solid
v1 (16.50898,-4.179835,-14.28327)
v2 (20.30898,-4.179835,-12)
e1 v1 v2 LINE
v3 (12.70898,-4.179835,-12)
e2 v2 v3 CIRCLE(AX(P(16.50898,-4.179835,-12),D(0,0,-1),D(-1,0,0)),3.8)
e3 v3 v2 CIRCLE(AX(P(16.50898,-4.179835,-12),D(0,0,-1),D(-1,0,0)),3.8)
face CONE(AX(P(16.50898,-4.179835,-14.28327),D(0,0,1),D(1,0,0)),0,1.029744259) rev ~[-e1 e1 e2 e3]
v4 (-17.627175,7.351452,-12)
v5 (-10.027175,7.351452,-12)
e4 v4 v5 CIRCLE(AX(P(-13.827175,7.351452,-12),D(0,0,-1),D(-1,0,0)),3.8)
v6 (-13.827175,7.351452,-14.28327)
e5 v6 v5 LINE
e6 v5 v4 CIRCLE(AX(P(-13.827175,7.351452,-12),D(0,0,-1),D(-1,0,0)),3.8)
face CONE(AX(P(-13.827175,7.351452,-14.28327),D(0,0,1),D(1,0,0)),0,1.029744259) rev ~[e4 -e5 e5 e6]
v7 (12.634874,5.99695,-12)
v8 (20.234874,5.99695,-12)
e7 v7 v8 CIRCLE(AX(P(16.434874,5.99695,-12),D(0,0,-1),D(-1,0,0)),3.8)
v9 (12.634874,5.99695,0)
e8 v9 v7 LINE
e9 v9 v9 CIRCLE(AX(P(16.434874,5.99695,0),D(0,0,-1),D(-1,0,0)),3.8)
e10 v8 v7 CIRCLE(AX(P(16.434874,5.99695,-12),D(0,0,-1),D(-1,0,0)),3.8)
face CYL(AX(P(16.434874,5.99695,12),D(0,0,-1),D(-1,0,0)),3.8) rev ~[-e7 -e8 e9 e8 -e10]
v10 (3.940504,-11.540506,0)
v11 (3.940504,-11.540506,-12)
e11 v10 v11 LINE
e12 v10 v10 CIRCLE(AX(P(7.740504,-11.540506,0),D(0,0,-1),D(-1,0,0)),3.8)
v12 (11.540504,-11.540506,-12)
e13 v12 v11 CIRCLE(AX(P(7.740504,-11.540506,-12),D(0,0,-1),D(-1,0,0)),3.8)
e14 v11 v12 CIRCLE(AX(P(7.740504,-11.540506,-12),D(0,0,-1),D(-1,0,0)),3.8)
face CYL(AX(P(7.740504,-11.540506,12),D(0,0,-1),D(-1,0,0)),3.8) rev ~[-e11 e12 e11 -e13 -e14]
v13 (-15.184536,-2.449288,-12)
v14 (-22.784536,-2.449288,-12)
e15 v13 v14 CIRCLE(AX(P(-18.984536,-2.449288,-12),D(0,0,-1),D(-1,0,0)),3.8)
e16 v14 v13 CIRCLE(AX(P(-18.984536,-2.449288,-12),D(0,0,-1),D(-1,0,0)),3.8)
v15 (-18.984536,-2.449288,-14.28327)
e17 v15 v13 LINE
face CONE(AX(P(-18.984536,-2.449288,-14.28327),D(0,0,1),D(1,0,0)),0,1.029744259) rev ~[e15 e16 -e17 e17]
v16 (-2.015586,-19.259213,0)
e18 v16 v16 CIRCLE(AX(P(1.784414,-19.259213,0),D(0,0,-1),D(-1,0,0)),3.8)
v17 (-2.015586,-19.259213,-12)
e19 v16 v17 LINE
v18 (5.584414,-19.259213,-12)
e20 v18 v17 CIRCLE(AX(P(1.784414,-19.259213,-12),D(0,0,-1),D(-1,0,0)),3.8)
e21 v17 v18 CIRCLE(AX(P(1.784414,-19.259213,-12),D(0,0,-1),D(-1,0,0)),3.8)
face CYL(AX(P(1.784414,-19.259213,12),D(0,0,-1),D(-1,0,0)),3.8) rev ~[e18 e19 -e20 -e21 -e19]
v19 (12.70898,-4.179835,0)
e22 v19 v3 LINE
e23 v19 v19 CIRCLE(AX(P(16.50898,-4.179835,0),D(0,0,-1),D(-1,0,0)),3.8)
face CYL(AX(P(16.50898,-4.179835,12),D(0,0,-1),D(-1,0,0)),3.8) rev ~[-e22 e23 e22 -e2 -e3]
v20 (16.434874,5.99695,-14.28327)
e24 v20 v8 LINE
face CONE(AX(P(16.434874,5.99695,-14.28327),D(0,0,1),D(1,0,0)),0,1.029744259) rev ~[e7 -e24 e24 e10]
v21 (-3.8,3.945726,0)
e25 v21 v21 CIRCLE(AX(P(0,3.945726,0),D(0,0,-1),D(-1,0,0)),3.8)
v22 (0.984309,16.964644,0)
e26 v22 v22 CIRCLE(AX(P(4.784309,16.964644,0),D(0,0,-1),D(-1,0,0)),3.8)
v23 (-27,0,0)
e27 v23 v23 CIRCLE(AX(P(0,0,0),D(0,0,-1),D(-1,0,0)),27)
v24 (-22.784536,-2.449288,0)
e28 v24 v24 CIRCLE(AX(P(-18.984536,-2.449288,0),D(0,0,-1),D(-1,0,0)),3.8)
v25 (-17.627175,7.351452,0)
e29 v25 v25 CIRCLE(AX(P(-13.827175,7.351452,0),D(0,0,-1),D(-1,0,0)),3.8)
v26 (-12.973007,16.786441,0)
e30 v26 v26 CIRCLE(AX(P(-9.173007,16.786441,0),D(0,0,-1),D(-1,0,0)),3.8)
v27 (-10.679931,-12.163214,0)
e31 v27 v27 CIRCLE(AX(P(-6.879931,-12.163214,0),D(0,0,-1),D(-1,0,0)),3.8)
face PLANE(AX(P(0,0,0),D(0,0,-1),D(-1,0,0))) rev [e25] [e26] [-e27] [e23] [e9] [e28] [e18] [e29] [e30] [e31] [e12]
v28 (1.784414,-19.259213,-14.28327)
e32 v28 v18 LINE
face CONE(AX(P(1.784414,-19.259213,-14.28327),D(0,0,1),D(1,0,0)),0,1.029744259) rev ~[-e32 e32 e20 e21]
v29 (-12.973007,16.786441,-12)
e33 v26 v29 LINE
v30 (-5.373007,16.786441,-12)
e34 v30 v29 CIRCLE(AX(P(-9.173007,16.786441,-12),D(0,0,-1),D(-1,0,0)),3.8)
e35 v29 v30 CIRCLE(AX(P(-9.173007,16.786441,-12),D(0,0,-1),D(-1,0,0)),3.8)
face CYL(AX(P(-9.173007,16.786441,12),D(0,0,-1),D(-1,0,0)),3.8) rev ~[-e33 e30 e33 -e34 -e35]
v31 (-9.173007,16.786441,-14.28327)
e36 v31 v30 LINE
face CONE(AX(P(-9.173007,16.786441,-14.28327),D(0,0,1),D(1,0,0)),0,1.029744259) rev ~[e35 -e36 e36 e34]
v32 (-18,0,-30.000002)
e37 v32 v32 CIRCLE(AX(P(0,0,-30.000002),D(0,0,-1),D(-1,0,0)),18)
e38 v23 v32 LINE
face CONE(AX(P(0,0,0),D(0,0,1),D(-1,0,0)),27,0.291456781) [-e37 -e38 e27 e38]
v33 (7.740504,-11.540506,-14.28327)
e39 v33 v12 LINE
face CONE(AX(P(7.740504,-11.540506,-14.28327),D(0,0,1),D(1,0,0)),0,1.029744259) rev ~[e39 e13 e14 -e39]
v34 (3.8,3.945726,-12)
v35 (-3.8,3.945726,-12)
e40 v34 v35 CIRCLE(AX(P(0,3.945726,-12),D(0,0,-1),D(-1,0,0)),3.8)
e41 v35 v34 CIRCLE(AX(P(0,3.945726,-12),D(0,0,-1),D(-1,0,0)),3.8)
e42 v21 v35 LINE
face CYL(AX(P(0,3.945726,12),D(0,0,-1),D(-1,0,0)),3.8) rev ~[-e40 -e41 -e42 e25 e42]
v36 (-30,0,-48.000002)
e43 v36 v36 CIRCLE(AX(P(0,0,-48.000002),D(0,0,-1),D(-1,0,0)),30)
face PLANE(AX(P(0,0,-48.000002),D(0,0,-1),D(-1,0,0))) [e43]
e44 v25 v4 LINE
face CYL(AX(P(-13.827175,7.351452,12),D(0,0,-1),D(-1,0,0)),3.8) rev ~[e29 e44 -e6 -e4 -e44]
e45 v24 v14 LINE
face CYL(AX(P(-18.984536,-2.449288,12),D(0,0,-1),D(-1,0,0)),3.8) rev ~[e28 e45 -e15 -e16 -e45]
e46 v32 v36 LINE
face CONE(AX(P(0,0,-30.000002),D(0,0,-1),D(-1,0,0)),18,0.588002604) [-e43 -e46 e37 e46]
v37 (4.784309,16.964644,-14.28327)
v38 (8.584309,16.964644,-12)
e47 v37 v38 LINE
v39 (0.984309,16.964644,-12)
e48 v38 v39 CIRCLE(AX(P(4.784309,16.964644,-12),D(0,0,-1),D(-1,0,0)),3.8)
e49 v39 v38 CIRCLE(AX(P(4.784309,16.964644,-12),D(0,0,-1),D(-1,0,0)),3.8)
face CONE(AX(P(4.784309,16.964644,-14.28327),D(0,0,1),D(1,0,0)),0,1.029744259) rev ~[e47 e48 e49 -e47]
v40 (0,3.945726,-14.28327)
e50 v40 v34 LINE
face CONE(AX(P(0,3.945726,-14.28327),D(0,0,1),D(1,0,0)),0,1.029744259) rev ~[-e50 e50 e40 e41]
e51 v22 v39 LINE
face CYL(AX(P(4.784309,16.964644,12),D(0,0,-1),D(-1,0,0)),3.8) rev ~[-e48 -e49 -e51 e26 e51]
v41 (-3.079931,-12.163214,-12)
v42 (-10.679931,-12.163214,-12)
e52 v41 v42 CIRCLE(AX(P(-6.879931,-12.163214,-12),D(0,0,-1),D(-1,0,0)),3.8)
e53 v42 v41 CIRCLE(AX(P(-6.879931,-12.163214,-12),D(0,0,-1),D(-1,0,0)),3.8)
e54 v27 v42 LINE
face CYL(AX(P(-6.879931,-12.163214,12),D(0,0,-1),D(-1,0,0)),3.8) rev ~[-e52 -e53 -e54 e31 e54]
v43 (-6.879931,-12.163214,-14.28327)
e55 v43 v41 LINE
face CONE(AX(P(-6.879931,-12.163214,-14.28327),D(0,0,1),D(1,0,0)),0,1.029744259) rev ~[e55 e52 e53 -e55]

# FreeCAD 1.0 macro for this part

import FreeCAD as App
import Part
import Sketcher

V = App.Vector


def add_polygon(sketch, points):
    """Adds a closed chain of lines whose ends are joined by coincident constraints."""
    first, n = sketch.GeometryCount, len(points)
    for a, b in zip(points, points[1:] + points[:1]):
        sketch.addGeometry(Part.LineSegment(App.Vector(*a, 0), App.Vector(*b, 0)), False)
    for i in range(n):
        sketch.addConstraint(Sketcher.Constraint("Coincident", first + i, 2, first + (i + 1) % n, 1))

doc = App.newDocument("Part")
body = doc.addObject("PartDesign::Body", "Body")

sketch1 = doc.addObject("Sketcher::SketchObject", "Sketch")
body.addObject(sketch1)
sketch1.AttachmentSupport = (doc.XZ_Plane, [""])
sketch1.MapMode = "FlatFace"
add_polygon(sketch1, [(-18, -30.000002), (-30, -48.000002), (0, -48.000002), (0, 0), (-27, 0)])
sketch1.addConstraint([
    Sketcher.Constraint("Horizontal", 1),
    Sketcher.Constraint("Vertical", 2),
    Sketcher.Constraint("Horizontal", 3),
    Sketcher.Constraint("Coincident", 2, 2, -1, 1),
    Sketcher.Constraint("DistanceX", 1, 1, 1, 2, 30.0),
    Sketcher.Constraint("DistanceX", 3, 2, 3, 1, 27.0),
    Sketcher.Constraint("DistanceY", 2, 1, 2, 2, 48.000002),
    Sketcher.Constraint("DistanceX", 4, 2, -1, 1, 18.0),
    Sketcher.Constraint("DistanceY", 4, 2, -1, 1, 30.000002),
])
revolution = doc.addObject("PartDesign::Revolution", "Revolution")
body.addObject(revolution)
revolution.Profile = sketch1
revolution.ReferenceAxis = (sketch1, ["V_Axis"])
revolution.Angle = 360

sketch2 = doc.addObject("Sketcher::SketchObject", "Sketch001")
body.addObject(sketch2)
sketch2.AttachmentSupport = (doc.XY_Plane, [""])
sketch2.MapMode = "FlatFace"
sketch2.addGeometry([
    Part.Circle(V(4.784309, 16.964644, 0), V(0, 0, 1), 3.8),
    Part.Circle(V(0, 3.945726, 0), V(0, 0, 1), 3.8),
    Part.Circle(V(16.434874, 5.99695, 0), V(0, 0, 1), 3.8),
    Part.Circle(V(-9.173007, 16.786441, 0), V(0, 0, 1), 3.8),
    Part.Circle(V(7.740504, -11.540506, 0), V(0, 0, 1), 3.8),
    Part.Circle(V(-6.879931, -12.163214, 0), V(0, 0, 1), 3.8),
    Part.Circle(V(-18.984536, -2.449288, 0), V(0, 0, 1), 3.8),
], False)
sketch2.addConstraint([
    Sketcher.Constraint("Equal", 0, 1),
    Sketcher.Constraint("Equal", 1, 2),
    Sketcher.Constraint("Equal", 2, 3),
    Sketcher.Constraint("Equal", 3, 4),
    Sketcher.Constraint("Equal", 4, 5),
    Sketcher.Constraint("Equal", 5, 6),
    Sketcher.Constraint("PointOnObject", 1, 3, -2),
    Sketcher.Constraint("Diameter", 0, 7.6),
    Sketcher.Constraint("DistanceX", -1, 1, 0, 3, 4.784309),
    Sketcher.Constraint("DistanceY", -1, 1, 2, 3, 5.99695),
    Sketcher.Constraint("DistanceY", -1, 1, 3, 3, 16.786441),
    Sketcher.Constraint("DistanceX", 5, 3, -1, 1, 6.879931),
    Sketcher.Constraint("DistanceX", 3, 3, 2, 3, 25.607881),
    Sketcher.Constraint("DistanceX", 4, 3, 2, 3, 8.694371),
    Sketcher.Constraint("DistanceY", 4, 3, 0, 3, 28.50515),
    Sketcher.Constraint("DistanceY", 5, 3, 4, 3, 0.622708),
    Sketcher.Constraint("DistanceY", 5, 3, 1, 3, 16.108941),
    Sketcher.Constraint("DistanceX", 6, 3, 3, 3, 9.811529),
    Sketcher.Constraint("DistanceY", 6, 3, 3, 3, 19.235729),
    Sketcher.Constraint("DistanceY", 4, 3, 6, 3, 9.091218),
    Sketcher.Constraint("DistanceX", -1, 1, 2, 3, 16.434874),
])
doc.recompute()
hole = doc.addObject("PartDesign::Hole", "Hole")
body.addObject(hole)
hole.Profile = sketch2
hole.ThreadType = "None"
hole.Diameter = 7.6
hole.DepthType = "Dimension"
hole.Depth = 12
hole.DrillPoint = "Angled"
hole.DrillPointAngle = 118

sketch3 = doc.addObject("Sketcher::SketchObject", "Sketch002")
body.addObject(sketch3)
sketch3.AttachmentSupport = (doc.XY_Plane, [""])
sketch3.MapMode = "FlatFace"
sketch3.addGeometry([
    Part.Circle(V(-13.827175, 7.351452, 0), V(0, 0, 1), 3.8),
    Part.Circle(V(1.784414, -19.259213, 0), V(0, 0, 1), 3.8),
    Part.Circle(V(16.50898, -4.179835, 0), V(0, 0, 1), 3.8),
], False)
sketch3.addConstraint([
    Sketcher.Constraint("Equal", 0, 1),
    Sketcher.Constraint("Equal", 1, 2),
    Sketcher.Constraint("Diameter", 0, 7.6),
    Sketcher.Constraint("DistanceX", -1, 1, 2, 3, 16.50898),
    Sketcher.Constraint("DistanceX", 0, 3, 1, 3, 15.611589),
    Sketcher.Constraint("DistanceX", 0, 3, -1, 1, 13.827175),
    Sketcher.Constraint("DistanceY", -1, 1, 0, 3, 7.351452),
    Sketcher.Constraint("DistanceY", 1, 3, -1, 1, 19.259213),
    Sketcher.Constraint("DistanceY", 2, 3, -1, 1, 4.179835),
])
doc.recompute()
hole2 = doc.addObject("PartDesign::Hole", "Hole001")
body.addObject(hole2)
hole2.Profile = sketch3
hole2.ThreadType = "None"
hole2.Diameter = 7.6
hole2.DepthType = "Dimension"
hole2.Depth = 12
hole2.DrillPoint = "Angled"
hole2.DrillPointAngle = 118

doc.recompute()
